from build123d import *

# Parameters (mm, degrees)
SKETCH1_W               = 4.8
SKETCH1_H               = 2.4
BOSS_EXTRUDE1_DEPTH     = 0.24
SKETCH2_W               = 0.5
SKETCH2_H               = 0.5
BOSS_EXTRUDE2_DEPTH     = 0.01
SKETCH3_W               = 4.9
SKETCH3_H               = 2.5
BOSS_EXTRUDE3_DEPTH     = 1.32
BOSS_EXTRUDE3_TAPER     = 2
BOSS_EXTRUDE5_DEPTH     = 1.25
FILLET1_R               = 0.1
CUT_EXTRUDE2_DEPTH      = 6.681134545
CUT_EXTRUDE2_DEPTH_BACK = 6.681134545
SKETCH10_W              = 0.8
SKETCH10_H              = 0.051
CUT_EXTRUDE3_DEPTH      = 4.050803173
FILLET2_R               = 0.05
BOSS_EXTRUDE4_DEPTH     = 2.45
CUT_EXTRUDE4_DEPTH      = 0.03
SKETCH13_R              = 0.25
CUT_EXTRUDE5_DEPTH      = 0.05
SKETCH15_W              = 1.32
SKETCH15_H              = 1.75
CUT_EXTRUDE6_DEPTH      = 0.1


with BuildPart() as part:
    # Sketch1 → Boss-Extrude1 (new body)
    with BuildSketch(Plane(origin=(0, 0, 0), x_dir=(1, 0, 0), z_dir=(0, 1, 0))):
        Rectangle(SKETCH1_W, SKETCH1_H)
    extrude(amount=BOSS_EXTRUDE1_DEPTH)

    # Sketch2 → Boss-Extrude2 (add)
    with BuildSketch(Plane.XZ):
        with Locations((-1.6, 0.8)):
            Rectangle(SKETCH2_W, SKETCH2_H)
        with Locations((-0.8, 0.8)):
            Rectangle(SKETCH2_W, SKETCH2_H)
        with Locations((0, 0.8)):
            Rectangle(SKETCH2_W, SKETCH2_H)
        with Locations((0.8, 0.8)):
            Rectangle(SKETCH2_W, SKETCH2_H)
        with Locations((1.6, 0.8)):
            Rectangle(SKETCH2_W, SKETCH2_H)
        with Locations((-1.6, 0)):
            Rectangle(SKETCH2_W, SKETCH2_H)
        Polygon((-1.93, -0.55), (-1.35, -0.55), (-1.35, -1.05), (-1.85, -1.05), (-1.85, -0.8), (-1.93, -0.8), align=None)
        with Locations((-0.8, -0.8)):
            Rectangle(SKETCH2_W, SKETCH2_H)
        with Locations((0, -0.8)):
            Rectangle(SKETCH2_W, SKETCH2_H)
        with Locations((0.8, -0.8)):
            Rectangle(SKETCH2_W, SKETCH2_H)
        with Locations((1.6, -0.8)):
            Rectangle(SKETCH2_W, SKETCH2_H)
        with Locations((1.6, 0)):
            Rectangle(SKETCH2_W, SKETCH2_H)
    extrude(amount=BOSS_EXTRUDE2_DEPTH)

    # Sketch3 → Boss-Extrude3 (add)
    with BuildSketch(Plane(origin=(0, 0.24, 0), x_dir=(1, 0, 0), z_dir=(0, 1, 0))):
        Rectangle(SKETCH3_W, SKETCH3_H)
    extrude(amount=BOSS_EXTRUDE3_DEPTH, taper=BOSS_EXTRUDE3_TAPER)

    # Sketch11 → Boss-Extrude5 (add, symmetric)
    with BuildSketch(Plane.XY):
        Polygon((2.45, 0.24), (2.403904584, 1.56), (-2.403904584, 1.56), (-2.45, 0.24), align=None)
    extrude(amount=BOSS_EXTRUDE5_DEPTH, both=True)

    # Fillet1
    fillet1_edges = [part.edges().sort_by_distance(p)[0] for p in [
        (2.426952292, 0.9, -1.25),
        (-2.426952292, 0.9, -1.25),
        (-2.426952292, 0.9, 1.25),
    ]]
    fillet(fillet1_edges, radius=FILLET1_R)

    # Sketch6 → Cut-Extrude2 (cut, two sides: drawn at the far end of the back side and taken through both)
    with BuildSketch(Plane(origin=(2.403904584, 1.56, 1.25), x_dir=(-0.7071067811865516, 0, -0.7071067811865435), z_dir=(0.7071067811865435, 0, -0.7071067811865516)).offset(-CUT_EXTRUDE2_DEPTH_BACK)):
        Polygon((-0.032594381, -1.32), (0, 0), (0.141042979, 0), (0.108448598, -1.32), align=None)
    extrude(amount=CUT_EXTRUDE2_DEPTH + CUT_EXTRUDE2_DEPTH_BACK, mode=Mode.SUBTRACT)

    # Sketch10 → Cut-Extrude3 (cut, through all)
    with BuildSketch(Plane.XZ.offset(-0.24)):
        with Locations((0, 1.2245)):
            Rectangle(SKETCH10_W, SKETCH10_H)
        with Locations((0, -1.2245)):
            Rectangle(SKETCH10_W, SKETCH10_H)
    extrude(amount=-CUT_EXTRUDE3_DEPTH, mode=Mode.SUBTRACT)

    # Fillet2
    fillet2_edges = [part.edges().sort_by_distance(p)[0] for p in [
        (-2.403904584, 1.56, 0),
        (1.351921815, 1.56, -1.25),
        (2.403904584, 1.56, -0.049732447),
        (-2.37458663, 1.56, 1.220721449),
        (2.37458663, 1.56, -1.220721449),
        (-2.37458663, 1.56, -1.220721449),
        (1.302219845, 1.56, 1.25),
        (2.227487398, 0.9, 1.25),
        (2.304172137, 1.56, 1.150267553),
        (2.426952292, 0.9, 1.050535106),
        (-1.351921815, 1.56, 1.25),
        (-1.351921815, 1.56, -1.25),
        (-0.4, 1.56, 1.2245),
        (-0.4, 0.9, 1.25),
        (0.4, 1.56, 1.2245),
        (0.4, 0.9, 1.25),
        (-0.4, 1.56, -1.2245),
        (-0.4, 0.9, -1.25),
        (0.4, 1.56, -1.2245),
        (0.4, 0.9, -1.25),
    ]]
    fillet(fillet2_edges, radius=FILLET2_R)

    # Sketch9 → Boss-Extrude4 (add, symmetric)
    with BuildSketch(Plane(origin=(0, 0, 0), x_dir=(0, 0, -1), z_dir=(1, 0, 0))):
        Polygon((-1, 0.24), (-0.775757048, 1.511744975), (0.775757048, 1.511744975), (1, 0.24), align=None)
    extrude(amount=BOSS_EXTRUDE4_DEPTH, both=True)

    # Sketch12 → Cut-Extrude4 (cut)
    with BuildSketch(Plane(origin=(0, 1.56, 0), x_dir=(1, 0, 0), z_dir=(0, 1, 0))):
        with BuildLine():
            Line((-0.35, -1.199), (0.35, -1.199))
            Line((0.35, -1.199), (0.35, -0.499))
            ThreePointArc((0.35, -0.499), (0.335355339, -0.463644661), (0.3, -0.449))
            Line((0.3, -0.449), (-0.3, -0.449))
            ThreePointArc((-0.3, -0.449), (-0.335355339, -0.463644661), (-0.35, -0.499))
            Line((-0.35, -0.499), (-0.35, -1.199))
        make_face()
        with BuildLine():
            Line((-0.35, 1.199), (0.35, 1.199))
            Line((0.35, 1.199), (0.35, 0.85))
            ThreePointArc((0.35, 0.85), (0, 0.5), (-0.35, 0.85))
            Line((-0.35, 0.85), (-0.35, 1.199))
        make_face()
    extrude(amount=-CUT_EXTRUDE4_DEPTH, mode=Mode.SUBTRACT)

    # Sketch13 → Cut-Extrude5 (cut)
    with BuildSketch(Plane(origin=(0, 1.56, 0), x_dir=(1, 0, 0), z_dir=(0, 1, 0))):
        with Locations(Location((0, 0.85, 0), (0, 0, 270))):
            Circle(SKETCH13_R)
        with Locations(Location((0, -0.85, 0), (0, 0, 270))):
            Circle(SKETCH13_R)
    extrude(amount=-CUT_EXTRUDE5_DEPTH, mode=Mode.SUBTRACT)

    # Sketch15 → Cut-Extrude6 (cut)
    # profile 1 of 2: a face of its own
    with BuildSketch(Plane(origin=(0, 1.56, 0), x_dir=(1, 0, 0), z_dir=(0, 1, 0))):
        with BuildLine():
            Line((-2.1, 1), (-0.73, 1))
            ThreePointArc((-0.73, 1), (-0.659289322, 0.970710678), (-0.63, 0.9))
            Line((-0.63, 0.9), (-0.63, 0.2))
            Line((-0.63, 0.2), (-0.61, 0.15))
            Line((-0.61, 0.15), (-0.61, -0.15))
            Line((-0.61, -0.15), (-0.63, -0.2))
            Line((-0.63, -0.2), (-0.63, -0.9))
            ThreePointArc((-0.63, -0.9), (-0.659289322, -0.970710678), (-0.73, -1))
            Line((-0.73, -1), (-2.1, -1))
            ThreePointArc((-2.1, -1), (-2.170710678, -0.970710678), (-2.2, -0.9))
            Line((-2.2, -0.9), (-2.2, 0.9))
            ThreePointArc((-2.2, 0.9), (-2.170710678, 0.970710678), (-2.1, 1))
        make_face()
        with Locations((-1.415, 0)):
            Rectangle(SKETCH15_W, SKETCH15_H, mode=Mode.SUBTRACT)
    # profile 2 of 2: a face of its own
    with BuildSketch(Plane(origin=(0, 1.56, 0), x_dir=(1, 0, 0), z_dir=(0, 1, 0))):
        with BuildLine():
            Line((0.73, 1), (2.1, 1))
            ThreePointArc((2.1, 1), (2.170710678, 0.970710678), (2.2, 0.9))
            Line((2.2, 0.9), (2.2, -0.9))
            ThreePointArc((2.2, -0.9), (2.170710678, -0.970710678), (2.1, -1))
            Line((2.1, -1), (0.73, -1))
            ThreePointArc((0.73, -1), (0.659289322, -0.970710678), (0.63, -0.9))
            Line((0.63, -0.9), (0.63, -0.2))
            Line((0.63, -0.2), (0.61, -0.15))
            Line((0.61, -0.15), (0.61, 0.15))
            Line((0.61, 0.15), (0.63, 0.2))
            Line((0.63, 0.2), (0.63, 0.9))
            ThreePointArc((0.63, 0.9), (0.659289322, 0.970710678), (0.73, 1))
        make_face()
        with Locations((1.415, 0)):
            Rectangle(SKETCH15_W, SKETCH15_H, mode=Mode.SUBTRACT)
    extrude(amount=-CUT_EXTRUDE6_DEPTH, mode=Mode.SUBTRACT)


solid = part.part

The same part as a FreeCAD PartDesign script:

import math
import FreeCAD as App
import Part
import Sketcher
Q = App.Units.Quantity


def edges_at(feature, points):
    """Names of the edges that pass closest to the given points."""
    edges = feature.Shape.Edges
    near = lambda p: min(range(len(edges)), key=lambda i: edges[i].distToShape(Part.Vertex(*p))[0])
    return sorted({f"Edge{near(p) + 1}" for p in points})

doc = App.newDocument("Part")
body = doc.addObject("PartDesign::Body", "Body")

# Sketch on XZ plane
sketch1 = doc.addObject("Sketcher::SketchObject", "Sketch")
body.addObject(sketch1)
sketch1.AttachmentSupport = (doc.XZ_Plane, [""])
sketch1.MapMode = "FlatFace"
sketch1.addGeometry([
    Part.LineSegment(App.Vector(-2.4, -1.2, 0), App.Vector(-2.4, 1.2, 0)),
    Part.LineSegment(App.Vector(-2.4, 1.2, 0), App.Vector(2.4, 1.2, 0)),
    Part.LineSegment(App.Vector(2.4, 1.2, 0), App.Vector(2.4, -1.2, 0)),
    Part.LineSegment(App.Vector(2.4, -1.2, 0), App.Vector(-2.4, -1.2, 0)),
], False)
sketch1.addConstraint([
    Sketcher.Constraint("Coincident", 0, 2, 1, 1),
    Sketcher.Constraint("Coincident", 1, 2, 2, 1),
    Sketcher.Constraint("Coincident", 2, 2, 3, 1),
    Sketcher.Constraint("Coincident", 3, 2, 0, 1),
    Sketcher.Constraint("Vertical", 0),
    Sketcher.Constraint("Horizontal", 1),
    Sketcher.Constraint("Vertical", 2),
    Sketcher.Constraint("Horizontal", 3),
    Sketcher.Constraint("Symmetric", 0, 2, 2, 2, -1, 1),
    Sketcher.Constraint("DistanceX", 1, 1, 1, 2, Q("4.8 mm")),
    Sketcher.Constraint("DistanceY", 0, 1, 0, 2, Q("2.4 mm")),
])
pad1 = doc.addObject("PartDesign::Pad", "Pad")
body.addObject(pad1)
pad1.Profile = sketch1
pad1.Length = 0.24
pad1.Reversed = True

# Sketch on XZ plane
sketch2 = doc.addObject("Sketcher::SketchObject", "Sketch001")
body.addObject(sketch2)
sketch2.AttachmentSupport = (doc.XZ_Plane, [""])
sketch2.MapMode = "FlatFace"
sketch2.addGeometry([
    Part.LineSegment(App.Vector(-1.85, 1.05, 0), App.Vector(-1.85, 0.55, 0)),  # 0
    Part.LineSegment(App.Vector(-1.85, 0.55, 0), App.Vector(-1.35, 0.55, 0)),  # 1
    Part.LineSegment(App.Vector(-1.35, 0.55, 0), App.Vector(-1.35, 1.05, 0)),  # 2
    Part.LineSegment(App.Vector(-1.35, 1.05, 0), App.Vector(-1.85, 1.05, 0)),  # 3
    Part.LineSegment(App.Vector(-1.05, 1.05, 0), App.Vector(-1.05, 0.55, 0)),  # 4
    Part.LineSegment(App.Vector(-1.05, 0.55, 0), App.Vector(-0.55, 0.55, 0)),  # 5
    Part.LineSegment(App.Vector(-0.55, 0.55, 0), App.Vector(-0.55, 1.05, 0)),  # 6
    Part.LineSegment(App.Vector(-0.55, 1.05, 0), App.Vector(-1.05, 1.05, 0)),  # 7
    Part.LineSegment(App.Vector(-0.25, 1.05, 0), App.Vector(-0.25, 0.55, 0)),  # 8
    Part.LineSegment(App.Vector(-0.25, 0.55, 0), App.Vector(0.25, 0.55, 0)),  # 9
    Part.LineSegment(App.Vector(0.25, 0.55, 0), App.Vector(0.25, 1.05, 0)),  # 10
    Part.LineSegment(App.Vector(0.25, 1.05, 0), App.Vector(-0.25, 1.05, 0)),  # 11
    Part.LineSegment(App.Vector(0.55, 1.05, 0), App.Vector(0.55, 0.55, 0)),  # 12
    Part.LineSegment(App.Vector(0.55, 0.55, 0), App.Vector(1.05, 0.55, 0)),  # 13
    Part.LineSegment(App.Vector(1.05, 0.55, 0), App.Vector(1.05, 1.05, 0)),  # 14
    Part.LineSegment(App.Vector(1.05, 1.05, 0), App.Vector(0.55, 1.05, 0)),  # 15
    Part.LineSegment(App.Vector(1.35, 1.05, 0), App.Vector(1.35, 0.55, 0)),  # 16
    Part.LineSegment(App.Vector(1.35, 0.55, 0), App.Vector(1.85, 0.55, 0)),  # 17
    Part.LineSegment(App.Vector(1.85, 0.55, 0), App.Vector(1.85, 1.05, 0)),  # 18
    Part.LineSegment(App.Vector(1.85, 1.05, 0), App.Vector(1.35, 1.05, 0)),  # 19
    Part.LineSegment(App.Vector(-1.85, 0.25, 0), App.Vector(-1.85, -0.25, 0)),  # 20
    Part.LineSegment(App.Vector(-1.85, -0.25, 0), App.Vector(-1.35, -0.25, 0)),  # 21
    Part.LineSegment(App.Vector(-1.35, -0.25, 0), App.Vector(-1.35, 0.25, 0)),  # 22
    Part.LineSegment(App.Vector(-1.35, 0.25, 0), App.Vector(-1.85, 0.25, 0)),  # 23
    Part.LineSegment(App.Vector(-1.35, -0.55, 0), App.Vector(-1.93, -0.55, 0)),  # 24
    Part.LineSegment(App.Vector(-1.93, -0.55, 0), App.Vector(-1.93, -0.8, 0)),  # 25
    Part.LineSegment(App.Vector(-1.93, -0.8, 0), App.Vector(-1.85, -0.8, 0)),  # 26
    Part.LineSegment(App.Vector(-1.85, -0.8, 0), App.Vector(-1.85, -1.05, 0)),  # 27
    Part.LineSegment(App.Vector(-1.85, -1.05, 0), App.Vector(-1.35, -1.05, 0)),  # 28
    Part.LineSegment(App.Vector(-1.35, -1.05, 0), App.Vector(-1.35, -0.55, 0)),  # 29
    Part.LineSegment(App.Vector(-1.05, -0.55, 0), App.Vector(-1.05, -1.05, 0)),  # 30
    Part.LineSegment(App.Vector(-1.05, -1.05, 0), App.Vector(-0.55, -1.05, 0)),  # 31
    Part.LineSegment(App.Vector(-0.55, -1.05, 0), App.Vector(-0.55, -0.55, 0)),  # 32
    Part.LineSegment(App.Vector(-0.55, -0.55, 0), App.Vector(-1.05, -0.55, 0)),  # 33
    Part.LineSegment(App.Vector(-0.25, -0.55, 0), App.Vector(-0.25, -1.05, 0)),  # 34
    Part.LineSegment(App.Vector(-0.25, -1.05, 0), App.Vector(0.25, -1.05, 0)),  # 35
    Part.LineSegment(App.Vector(0.25, -1.05, 0), App.Vector(0.25, -0.55, 0)),  # 36
    Part.LineSegment(App.Vector(0.25, -0.55, 0), App.Vector(-0.25, -0.55, 0)),  # 37
    Part.LineSegment(App.Vector(0.55, -0.55, 0), App.Vector(0.55, -1.05, 0)),  # 38
    Part.LineSegment(App.Vector(0.55, -1.05, 0), App.Vector(1.05, -1.05, 0)),  # 39
    Part.LineSegment(App.Vector(1.05, -1.05, 0), App.Vector(1.05, -0.55, 0)),  # 40
    Part.LineSegment(App.Vector(1.05, -0.55, 0), App.Vector(0.55, -0.55, 0)),  # 41
    Part.LineSegment(App.Vector(1.35, -0.55, 0), App.Vector(1.35, -1.05, 0)),  # 42
    Part.LineSegment(App.Vector(1.35, -1.05, 0), App.Vector(1.85, -1.05, 0)),  # 43
    Part.LineSegment(App.Vector(1.85, -1.05, 0), App.Vector(1.85, -0.55, 0)),  # 44
    Part.LineSegment(App.Vector(1.85, -0.55, 0), App.Vector(1.35, -0.55, 0)),  # 45
    Part.LineSegment(App.Vector(1.35, 0.25, 0), App.Vector(1.35, -0.25, 0)),  # 46
    Part.LineSegment(App.Vector(1.35, -0.25, 0), App.Vector(1.85, -0.25, 0)),  # 47
    Part.LineSegment(App.Vector(1.85, -0.25, 0), App.Vector(1.85, 0.25, 0)),  # 48
    Part.LineSegment(App.Vector(1.85, 0.25, 0), App.Vector(1.35, 0.25, 0)),  # 49
], False)
sketch2.addConstraint([
    Sketcher.Constraint("Coincident", 0, 2, 1, 1),
    Sketcher.Constraint("Coincident", 1, 2, 2, 1),
    Sketcher.Constraint("Coincident", 2, 2, 3, 1),
    Sketcher.Constraint("Coincident", 3, 2, 0, 1),
    Sketcher.Constraint("Coincident", 4, 2, 5, 1),
    Sketcher.Constraint("Coincident", 5, 2, 6, 1),
    Sketcher.Constraint("Coincident", 6, 2, 7, 1),
    Sketcher.Constraint("Coincident", 7, 2, 4, 1),
    Sketcher.Constraint("Coincident", 8, 2, 9, 1),
    Sketcher.Constraint("Coincident", 9, 2, 10, 1),
    Sketcher.Constraint("Coincident", 10, 2, 11, 1),
    Sketcher.Constraint("Coincident", 11, 2, 8, 1),
    Sketcher.Constraint("Coincident", 12, 2, 13, 1),
    Sketcher.Constraint("Coincident", 13, 2, 14, 1),
    Sketcher.Constraint("Coincident", 14, 2, 15, 1),
    Sketcher.Constraint("Coincident", 15, 2, 12, 1),
    Sketcher.Constraint("Coincident", 16, 2, 17, 1),
    Sketcher.Constraint("Coincident", 17, 2, 18, 1),
    Sketcher.Constraint("Coincident", 18, 2, 19, 1),
    Sketcher.Constraint("Coincident", 19, 2, 16, 1),
    Sketcher.Constraint("Coincident", 20, 2, 21, 1),
    Sketcher.Constraint("Coincident", 21, 2, 22, 1),
    Sketcher.Constraint("Coincident", 22, 2, 23, 1),
    Sketcher.Constraint("Coincident", 23, 2, 20, 1),
    Sketcher.Constraint("Coincident", 24, 2, 25, 1),
    Sketcher.Constraint("Coincident", 25, 2, 26, 1),
    Sketcher.Constraint("Coincident", 26, 2, 27, 1),
    Sketcher.Constraint("Coincident", 27, 2, 28, 1),
    Sketcher.Constraint("Coincident", 28, 2, 29, 1),
    Sketcher.Constraint("Coincident", 29, 2, 24, 1),
    Sketcher.Constraint("Coincident", 30, 2, 31, 1),
    Sketcher.Constraint("Coincident", 31, 2, 32, 1),
    Sketcher.Constraint("Coincident", 32, 2, 33, 1),
    Sketcher.Constraint("Coincident", 33, 2, 30, 1),
    Sketcher.Constraint("Coincident", 34, 2, 35, 1),
    Sketcher.Constraint("Coincident", 35, 2, 36, 1),
    Sketcher.Constraint("Coincident", 36, 2, 37, 1),
    Sketcher.Constraint("Coincident", 37, 2, 34, 1),
    Sketcher.Constraint("Coincident", 38, 2, 39, 1),
    Sketcher.Constraint("Coincident", 39, 2, 40, 1),
    Sketcher.Constraint("Coincident", 40, 2, 41, 1),
    Sketcher.Constraint("Coincident", 41, 2, 38, 1),
    Sketcher.Constraint("Coincident", 42, 2, 43, 1),
    Sketcher.Constraint("Coincident", 43, 2, 44, 1),
    Sketcher.Constraint("Coincident", 44, 2, 45, 1),
    Sketcher.Constraint("Coincident", 45, 2, 42, 1),
    Sketcher.Constraint("Coincident", 46, 2, 47, 1),
    Sketcher.Constraint("Coincident", 47, 2, 48, 1),
    Sketcher.Constraint("Coincident", 48, 2, 49, 1),
    Sketcher.Constraint("Coincident", 49, 2, 46, 1),
    Sketcher.Constraint("Vertical", 0),
    Sketcher.Constraint("Horizontal", 1),
    Sketcher.Constraint("Vertical", 2),
    Sketcher.Constraint("Horizontal", 3),
    Sketcher.Constraint("Vertical", 4),
    Sketcher.Constraint("Horizontal", 5),
    Sketcher.Constraint("Vertical", 6),
    Sketcher.Constraint("Horizontal", 7),
    Sketcher.Constraint("Vertical", 8),
    Sketcher.Constraint("Horizontal", 9),
    Sketcher.Constraint("Vertical", 10),
    Sketcher.Constraint("Horizontal", 11),
    Sketcher.Constraint("Vertical", 12),
    Sketcher.Constraint("Horizontal", 13),
    Sketcher.Constraint("Vertical", 14),
    Sketcher.Constraint("Horizontal", 15),
    Sketcher.Constraint("Vertical", 16),
    Sketcher.Constraint("Horizontal", 17),
    Sketcher.Constraint("Vertical", 18),
    Sketcher.Constraint("Horizontal", 19),
    Sketcher.Constraint("Vertical", 20),
    Sketcher.Constraint("Horizontal", 21),
    Sketcher.Constraint("Vertical", 22),
    Sketcher.Constraint("Horizontal", 23),
    Sketcher.Constraint("Horizontal", 24),
    Sketcher.Constraint("Vertical", 25),
    Sketcher.Constraint("Horizontal", 26),
    Sketcher.Constraint("Vertical", 27),
    Sketcher.Constraint("Horizontal", 28),
    Sketcher.Constraint("Vertical", 29),
    Sketcher.Constraint("Vertical", 30),
    Sketcher.Constraint("Horizontal", 31),
    Sketcher.Constraint("Vertical", 32),
    Sketcher.Constraint("Horizontal", 33),
    Sketcher.Constraint("Vertical", 34),
    Sketcher.Constraint("Horizontal", 35),
    Sketcher.Constraint("Vertical", 36),
    Sketcher.Constraint("Horizontal", 37),
    Sketcher.Constraint("Vertical", 38),
    Sketcher.Constraint("Horizontal", 39),
    Sketcher.Constraint("Vertical", 40),
    Sketcher.Constraint("Horizontal", 41),
    Sketcher.Constraint("Vertical", 42),
    Sketcher.Constraint("Horizontal", 43),
    Sketcher.Constraint("Vertical", 44),
    Sketcher.Constraint("Horizontal", 45),
    Sketcher.Constraint("Vertical", 46),
    Sketcher.Constraint("Horizontal", 47),
    Sketcher.Constraint("Vertical", 48),
    Sketcher.Constraint("Horizontal", 49),
    Sketcher.Constraint("Symmetric", 18, 2, 27, 2, -1, 1),
    Sketcher.Constraint("Symmetric", 16, 2, 29, 2, -1, 1),
    Sketcher.Constraint("Symmetric", 14, 2, 30, 2, -1, 1),
    Sketcher.Constraint("Symmetric", 12, 2, 32, 2, -1, 1),
    Sketcher.Constraint("Symmetric", 10, 2, 34, 2, -1, 1),
    Sketcher.Constraint("Symmetric", 8, 2, 36, 2, -1, 1),
    Sketcher.Constraint("Symmetric", 6, 2, 38, 2, -1, 1),
    Sketcher.Constraint("Symmetric", 4, 2, 40, 2, -1, 1),
    Sketcher.Constraint("Symmetric", 2, 2, 42, 2, -1, 1),
    Sketcher.Constraint("Symmetric", 0, 2, 44, 2, -1, 1),
    Sketcher.Constraint("Symmetric", 22, 2, 46, 2, -1, 1),
    Sketcher.Constraint("Symmetric", 20, 2, 48, 2, -1, 1),
    Sketcher.Constraint("Symmetric", 5, 2, 12, 2, -2),
    Sketcher.Constraint("Symmetric", 7, 2, 14, 2, -2),
    Sketcher.Constraint("Symmetric", 1, 2, 16, 2, -2),
    Sketcher.Constraint("Symmetric", 3, 2, 18, 2, -2),
    Sketcher.Constraint("Horizontal", 1, 2, 4, 2),
    Sketcher.Constraint("Horizontal", 3, 2, 6, 2),
    Sketcher.Constraint("Horizontal", 5, 2, 8, 2),
    Sketcher.Constraint("Horizontal", 7, 2, 10, 2),
    Sketcher.Constraint("Horizontal", 21, 2, 46, 2),
    Sketcher.Constraint("Vertical", 3, 2, 20, 2),
    Sketcher.Constraint("Vertical", 2, 2, 21, 2),
    Sketcher.Constraint("Vertical", 11, 2, 34, 2),
    Sketcher.Constraint("Equal", 3, 5),
    Sketcher.Constraint("Equal", 7, 9),
    Sketcher.Constraint("Equal", 49, 0),
    Sketcher.Constraint("Equal", 18, 20),
    Sketcher.Constraint("Equal", 25, 27),
    Sketcher.Constraint("DistanceX", 1, 1, 1, 2, Q("0.5 mm")),
    Sketcher.Constraint("DistanceX", 24, 2, 24, 1, Q("0.58 mm")),
    Sketcher.Constraint("DistanceY", 25, 2, -1, 1, Q("0.8 mm")),
    Sketcher.Constraint("DistanceX", 1, 2, 4, 2, Q("0.3 mm")),
    Sketcher.Constraint("DistanceX", 5, 2, 8, 2, Q("0.3 mm")),
])
pad2 = doc.addObject("PartDesign::Pad", "Pad001")
body.addObject(pad2)
pad2.Profile = sketch2
pad2.Length = 0.01

# Sketch on XZ plane
sketch3 = doc.addObject("Sketcher::SketchObject", "Sketch002")
body.addObject(sketch3)
sketch3.AttachmentSupport = (doc.XZ_Plane, [""])
sketch3.MapMode = "FlatFace"
sketch3.AttachmentOffset = App.Placement(App.Vector(0, 0, -0.24), App.Rotation())
sketch3.addGeometry([
    Part.LineSegment(App.Vector(-2.5, -1.2, 0), App.Vector(-2.5, 1.2, 0)),
    Part.LineSegment(App.Vector(-2.5, 1.2, 0), App.Vector(2.5, 1.2, 0)),
    Part.LineSegment(App.Vector(2.5, 1.2, 0), App.Vector(2.5, -1.2, 0)),
    Part.LineSegment(App.Vector(2.5, -1.2, 0), App.Vector(-2.5, -1.2, 0)),
], False)
sketch3.addConstraint([
    Sketcher.Constraint("Coincident", 0, 2, 1, 1),
    Sketcher.Constraint("Coincident", 1, 2, 2, 1),
    Sketcher.Constraint("Coincident", 2, 2, 3, 1),
    Sketcher.Constraint("Coincident", 3, 2, 0, 1),
    Sketcher.Constraint("Vertical", 0),
    Sketcher.Constraint("Horizontal", 1),
    Sketcher.Constraint("Vertical", 2),
    Sketcher.Constraint("Horizontal", 3),
    Sketcher.Constraint("Symmetric", 0, 2, 2, 2, -1, 1),
    Sketcher.Constraint("DistanceX", 1, 1, 1, 2, Q("4.9 mm")),
    Sketcher.Constraint("DistanceY", 0, 1, 0, 2, Q("2.5 mm")),
])
pad3 = doc.addObject("PartDesign::Pad", "Pad002")
body.addObject(pad3)
pad3.Profile = sketch3
pad3.Length = 1.32
pad3.Reversed = True
pad3.TaperAngle = -2

# Sketch on XY plane
sketch4 = doc.addObject("Sketcher::SketchObject", "Sketch003")
body.addObject(sketch4)
sketch4.AttachmentSupport = (doc.XY_Plane, [""])
sketch4.MapMode = "FlatFace"
sketch4.addGeometry([
    Part.LineSegment(App.Vector(2.5, 0.2, 0), App.Vector(2.4, 1.6, 0)),
    Part.LineSegment(App.Vector(2.4, 1.6, 0), App.Vector(-2.4, 1.6, 0)),
    Part.LineSegment(App.Vector(-2.4, 1.6, 0), App.Vector(-2.5, 0.2, 0)),
    Part.LineSegment(App.Vector(-2.5, 0.2, 0), App.Vector(2.5, 0.2, 0)),
], False)
sketch4.addConstraint([
    Sketcher.Constraint("Coincident", 0, 2, 1, 1),
    Sketcher.Constraint("Coincident", 1, 2, 2, 1),
    Sketcher.Constraint("Coincident", 2, 2, 3, 1),
    Sketcher.Constraint("Coincident", 3, 2, 0, 1),
    Sketcher.Constraint("Horizontal", 1),
    Sketcher.Constraint("Horizontal", 3),
    Sketcher.Constraint("Equal", 0, 2),
    Sketcher.Constraint("Angle", 0, Q("92 deg")),
    Sketcher.Constraint("DistanceX", 3, 1, 3, 2, Q("4.9 mm")),
    Sketcher.Constraint("DistanceY", -1, 1, 0, 2, Q("1.56 mm")),
    Sketcher.Constraint("DistanceX", 2, 2, -1, 1, Q("2.45 mm")),
    Sketcher.Constraint("DistanceY", -1, 1, 2, 2, Q("0.24 mm")),
])
pad4 = doc.addObject("PartDesign::Pad", "Pad003")
body.addObject(pad4)
pad4.Profile = sketch4
pad4.Length = 2.5
pad4.Midplane = True
doc.recompute()

fillet = doc.addObject("PartDesign::Fillet", "Fillet")
body.addObject(fillet)
fillet.Base = (pad4, edges_at(pad4, [(2.427, 0.9, -1.25), (-2.427, 0.9, -1.25), (-2.427, 0.9, 1.25)]))
fillet.Radius = 0.1

# Sketch on an angled plane
sketch5 = doc.addObject("Sketcher::SketchObject", "Sketch004")
body.addObject(sketch5)
sketch5.Placement = App.Placement(App.Vector(2.403905, 1.56, 1.25), App.Rotation(App.Vector(-0.707106781, 0, -0.707106781), App.Vector(0, 0.999999999, 0), App.Vector(0.707106781, 0, -0.707106781), "ZXY"))
sketch5.addGeometry([
    Part.LineSegment(App.Vector(0, 0, 0), App.Vector(-0.03, -1.32, 0)),
    Part.LineSegment(App.Vector(-0.03, -1.32, 0), App.Vector(0.11, -1.32, 0)),
    Part.LineSegment(App.Vector(0.11, -1.32, 0), App.Vector(0.14, 0, 0)),
    Part.LineSegment(App.Vector(0.14, 0, 0), App.Vector(0, 0, 0)),
], False)
sketch5.addConstraint([
    Sketcher.Constraint("Coincident", 0, 2, 1, 1),
    Sketcher.Constraint("Coincident", 1, 2, 2, 1),
    Sketcher.Constraint("Coincident", 2, 2, 3, 1),
    Sketcher.Constraint("Coincident", 3, 2, 0, 1),
    Sketcher.Constraint("Horizontal", 1),
    Sketcher.Constraint("Horizontal", 3),
    Sketcher.Constraint("Coincident", 3, 2, -1, 1),
    Sketcher.Constraint("Parallel", 0, 2),
    Sketcher.Constraint("DistanceY", 0, 2, -1, 1, Q("1.32 mm")),
    Sketcher.Constraint("DistanceX", 1, 1, 1, 2, Q("0.141043 mm")),
    Sketcher.Constraint("DistanceX", -1, 1, 1, 2, Q("0.108449 mm")),
])
pocket1 = doc.addObject("PartDesign::Pocket", "Pocket")
body.addObject(pocket1)
pocket1.Profile = sketch5
pocket1.Type = "ThroughAll"
pocket1.Midplane = True

# Sketch on XZ plane
sketch6 = doc.addObject("Sketcher::SketchObject", "Sketch005")
body.addObject(sketch6)
sketch6.AttachmentSupport = (doc.XZ_Plane, [""])
sketch6.MapMode = "FlatFace"
sketch6.AttachmentOffset = App.Placement(App.Vector(0, 0, -0.24), App.Rotation())
sketch6.addGeometry([
    Part.LineSegment(App.Vector(-0.4, 1.25, 0), App.Vector(-0.4, 1.2, 0)),  # 0
    Part.LineSegment(App.Vector(-0.4, 1.2, 0), App.Vector(0.4, 1.2, 0)),  # 1
    Part.LineSegment(App.Vector(0.4, 1.2, 0), App.Vector(0.4, 1.25, 0)),  # 2
    Part.LineSegment(App.Vector(0.4, 1.25, 0), App.Vector(-0.4, 1.25, 0)),  # 3
    Part.LineSegment(App.Vector(-0.4, -1.2, 0), App.Vector(-0.4, -1.25, 0)),  # 4
    Part.LineSegment(App.Vector(-0.4, -1.25, 0), App.Vector(0.4, -1.25, 0)),  # 5
    Part.LineSegment(App.Vector(0.4, -1.25, 0), App.Vector(0.4, -1.2, 0)),  # 6
    Part.LineSegment(App.Vector(0.4, -1.2, 0), App.Vector(-0.4, -1.2, 0)),  # 7
], False)
sketch6.addConstraint([
    Sketcher.Constraint("Coincident", 0, 2, 1, 1),
    Sketcher.Constraint("Coincident", 1, 2, 2, 1),
    Sketcher.Constraint("Coincident", 2, 2, 3, 1),
    Sketcher.Constraint("Coincident", 3, 2, 0, 1),
    Sketcher.Constraint("Coincident", 4, 2, 5, 1),
    Sketcher.Constraint("Coincident", 5, 2, 6, 1),
    Sketcher.Constraint("Coincident", 6, 2, 7, 1),
    Sketcher.Constraint("Coincident", 7, 2, 4, 1),
    Sketcher.Constraint("Vertical", 0),
    Sketcher.Constraint("Horizontal", 1),
    Sketcher.Constraint("Vertical", 2),
    Sketcher.Constraint("Horizontal", 3),
    Sketcher.Constraint("Vertical", 4),
    Sketcher.Constraint("Horizontal", 5),
    Sketcher.Constraint("Vertical", 6),
    Sketcher.Constraint("Horizontal", 7),
    Sketcher.Constraint("Symmetric", 2, 2, 4, 2, -1, 1),
    Sketcher.Constraint("Symmetric", 0, 2, 6, 2, -1, 1),
    Sketcher.Constraint("Vertical", 3, 2, 4, 2),
    Sketcher.Constraint("DistanceX", 1, 1, 1, 2, Q("0.8 mm")),
    Sketcher.Constraint("DistanceY", 4, 2, 3, 2, Q("2.5 mm")),
    Sketcher.Constraint("DistanceY", 0, 2, 0, 1, Q("0.051 mm")),
])
pocket2 = doc.addObject("PartDesign::Pocket", "Pocket001")
body.addObject(pocket2)
pocket2.Profile = sketch6
pocket2.Type = "ThroughAll"
doc.recompute()

fillet2 = doc.addObject("PartDesign::Fillet", "Fillet001")
body.addObject(fillet2)
fillet2.Base = (pocket2, edges_at(pocket2, [
    (-2.404, 1.56, 0),
    (1.352, 1.56, -1.25),
    (2.404, 1.56, -0.05),
    (-2.375, 1.56, 1.221),
    (2.375, 1.56, -1.221),
    (-2.375, 1.56, -1.221),
    (1.302, 1.56, 1.25),
    (2.227, 0.9, 1.25),
    (2.304, 1.56, 1.15),
    (2.427, 0.9, 1.051),
    (-1.352, 1.56, 1.25),
    (-1.352, 1.56, -1.25),
    (-0.4, 1.56, 1.224),
    (-0.4, 0.9, 1.25),
    (0.4, 1.56, 1.224),
    (0.4, 0.9, 1.25),
    (-0.4, 1.56, -1.224),
    (-0.4, 0.9, -1.25),
    (0.4, 1.56, -1.224),
    (0.4, 0.9, -1.25),
]))
fillet2.Radius = 0.05

# Sketch on YZ plane
sketch7 = doc.addObject("Sketcher::SketchObject", "Sketch006")
body.addObject(sketch7)
sketch7.AttachmentSupport = (doc.YZ_Plane, [""])
sketch7.MapMode = "FlatFace"
sketch7.addGeometry([
    Part.LineSegment(App.Vector(1.5, 0.8, 0), App.Vector(0.2, 1, 0)),
    Part.LineSegment(App.Vector(0.2, 1, 0), App.Vector(0.2, -1, 0)),
    Part.LineSegment(App.Vector(0.2, -1, 0), App.Vector(1.5, -0.8, 0)),
    Part.LineSegment(App.Vector(1.5, -0.8, 0), App.Vector(1.5, 0.8, 0)),
], False)
sketch7.addConstraint([
    Sketcher.Constraint("Coincident", 0, 2, 1, 1),
    Sketcher.Constraint("Coincident", 1, 2, 2, 1),
    Sketcher.Constraint("Coincident", 2, 2, 3, 1),
    Sketcher.Constraint("Coincident", 3, 2, 0, 1),
    Sketcher.Constraint("Vertical", 1),
    Sketcher.Constraint("Vertical", 3),
    Sketcher.Constraint("Equal", 0, 2),
    Sketcher.Constraint("DistanceY", 1, 2, 1, 1, Q("2 mm")),
    Sketcher.Constraint("Angle", 0, Q("170 deg")),
    Sketcher.Constraint("DistanceY", -1, 1, 0, 2, Q("1 mm")),
    Sketcher.Constraint("DistanceX", -1, 1, 0, 2, Q("0.24 mm")),
    Sketcher.Constraint("DistanceY", 3, 1, 3, 2, Q("1.551514 mm")),
])
pad5 = doc.addObject("PartDesign::Pad", "Pad004")
body.addObject(pad5)
pad5.Profile = sketch7
pad5.Length = 4.9
pad5.Midplane = True

# Sketch on XZ plane
sketch8 = doc.addObject("Sketcher::SketchObject", "Sketch007")
body.addObject(sketch8)
sketch8.AttachmentSupport = (doc.XZ_Plane, [""])
sketch8.MapMode = "FlatFace"
sketch8.AttachmentOffset = App.Placement(App.Vector(0, 0, -1.56), App.Rotation())
sketch8.addGeometry([
    Part.LineSegment(App.Vector(-0.35, 1.2, 0), App.Vector(0.35, 1.2, 0)),  # 0
    Part.LineSegment(App.Vector(0.35, 1.2, 0), App.Vector(0.35, 0.5, 0)),  # 1
    Part.ArcOfCircle(Part.Circle(App.Vector(0.3, 0.5, 0), App.Vector(0, 0, 1), 0.05), math.radians(-90), math.radians(0)),  # 2
    Part.LineSegment(App.Vector(0.3, 0.45, 0), App.Vector(-0.3, 0.45, 0)),  # 3
    Part.ArcOfCircle(Part.Circle(App.Vector(-0.3, 0.5, 0), App.Vector(0, 0, 1), 0.05), math.radians(180), math.radians(270)),  # 4
    Part.LineSegment(App.Vector(-0.35, 0.5, 0), App.Vector(-0.35, 1.2, 0)),  # 5
    Part.LineSegment(App.Vector(0.35, -1.2, 0), App.Vector(-0.35, -1.2, 0)),  # 6
    Part.LineSegment(App.Vector(-0.35, -1.2, 0), App.Vector(-0.35, -0.85, 0)),  # 7
    Part.ArcOfCircle(Part.Circle(App.Vector(0, -0.85, 0), App.Vector(0, 0, 1), 0.35), math.radians(0), math.radians(180)),  # 8
    Part.LineSegment(App.Vector(0.35, -0.85, 0), App.Vector(0.35, -1.2, 0)),  # 9
], False)
sketch8.addConstraint([
    Sketcher.Constraint("Coincident", 0, 2, 1, 1),
    Sketcher.Constraint("Tangent", 1, 2, 2, 2),
    Sketcher.Constraint("Tangent", 2, 1, 3, 1),
    Sketcher.Constraint("Tangent", 3, 2, 4, 2),
    Sketcher.Constraint("Tangent", 4, 1, 5, 1),
    Sketcher.Constraint("Coincident", 5, 2, 0, 1),
    Sketcher.Constraint("Coincident", 6, 2, 7, 1),
    Sketcher.Constraint("Tangent", 7, 2, 8, 2),
    Sketcher.Constraint("Tangent", 8, 1, 9, 1),
    Sketcher.Constraint("Coincident", 9, 2, 6, 1),
    Sketcher.Constraint("Horizontal", 0),
    Sketcher.Constraint("Vertical", 1),
    Sketcher.Constraint("Horizontal", 3),
    Sketcher.Constraint("Vertical", 5),
    Sketcher.Constraint("Horizontal", 6),
    Sketcher.Constraint("Vertical", 7),
    Sketcher.Constraint("Vertical", 9),
    Sketcher.Constraint("Equal", 2, 4),
    Sketcher.Constraint("Symmetric", 0, 2, 6, 2, -1, 1),
    Sketcher.Constraint("PointOnObject", 8, 3, -2),
    Sketcher.Constraint("Vertical", 5, 2, 6, 2),
    Sketcher.Constraint("Equal", 6, 1),
    Sketcher.Constraint("Radius", 2, Q("0.05 mm")),
    Sketcher.Constraint("Radius", 8, Q("0.35 mm")),
    Sketcher.Constraint("DistanceY", 7, 1, 7, 2, Q("0.349 mm")),
    Sketcher.Constraint("DistanceY", 8, 3, -1, 1, Q("0.85 mm")),
])
pocket3 = doc.addObject("PartDesign::Pocket", "Pocket002")
body.addObject(pocket3)
pocket3.Profile = sketch8
pocket3.Length = 0.03
pocket3.Reversed = True

# Sketch on XZ plane
sketch9 = doc.addObject("Sketcher::SketchObject", "Sketch008")
body.addObject(sketch9)
sketch9.AttachmentSupport = (doc.XZ_Plane, [""])
sketch9.MapMode = "FlatFace"
sketch9.AttachmentOffset = App.Placement(App.Vector(0, 0, -1.56), App.Rotation())
sketch9.addGeometry([
    Part.Circle(App.Vector(0, -0.85, 0), App.Vector(0, 0, 1), 0.25),
    Part.Circle(App.Vector(0, 0.85, 0), App.Vector(0, 0, 1), 0.25),
], False)
sketch9.addConstraint([
    Sketcher.Constraint("Equal", 0, 1),
    Sketcher.Constraint("Symmetric", 0, 3, 1, 3, -1, 1),
    Sketcher.Constraint("PointOnObject", 0, 3, -2),
    Sketcher.Constraint("Diameter", 0, Q("0.5 mm")),
    Sketcher.Constraint("DistanceY", 0, 3, 1, 3, Q("1.7 mm")),
])
pocket4 = doc.addObject("PartDesign::Pocket", "Pocket003")
body.addObject(pocket4)
pocket4.Profile = sketch9
pocket4.Length = 0.05
pocket4.Reversed = True

# Sketch on XZ plane
sketch10 = doc.addObject("Sketcher::SketchObject", "Sketch009")
body.addObject(sketch10)
sketch10.AttachmentSupport = (doc.XZ_Plane, [""])
sketch10.MapMode = "FlatFace"
sketch10.AttachmentOffset = App.Placement(App.Vector(0, 0, -1.56), App.Rotation())
sketch10.addGeometry([
    Part.LineSegment(App.Vector(-0.73, -1, 0), App.Vector(-2.1, -1, 0)),  # 0
    Part.ArcOfCircle(Part.Circle(App.Vector(-2.1, -0.9, 0), App.Vector(0, 0, 1), 0.1), math.radians(180), math.radians(270)),  # 1
    Part.LineSegment(App.Vector(-2.2, -0.9, 0), App.Vector(-2.2, 0.9, 0)),  # 2
    Part.ArcOfCircle(Part.Circle(App.Vector(-2.1, 0.9, 0), App.Vector(0, 0, 1), 0.1), math.radians(90), math.radians(180)),  # 3
    Part.LineSegment(App.Vector(-2.1, 1, 0), App.Vector(-0.73, 1, 0)),  # 4
    Part.ArcOfCircle(Part.Circle(App.Vector(-0.73, 0.9, 0), App.Vector(0, 0, 1), 0.1), math.radians(0), math.radians(90)),  # 5
    Part.LineSegment(App.Vector(-0.63, 0.9, 0), App.Vector(-0.63, 0.2, 0)),  # 6
    Part.LineSegment(App.Vector(-0.63, 0.2, 0), App.Vector(-0.61, 0.15, 0)),  # 7
    Part.LineSegment(App.Vector(-0.61, 0.15, 0), App.Vector(-0.61, -0.15, 0)),  # 8
    Part.LineSegment(App.Vector(-0.61, -0.15, 0), App.Vector(-0.63, -0.2, 0)),  # 9
    Part.LineSegment(App.Vector(-0.63, -0.2, 0), App.Vector(-0.63, -0.9, 0)),  # 10
    Part.ArcOfCircle(Part.Circle(App.Vector(-0.73, -0.9, 0), App.Vector(0, 0, 1), 0.1), math.radians(-90), math.radians(0)),  # 11
    Part.LineSegment(App.Vector(-2.08, 0.88, 0), App.Vector(-2.08, -0.88, 0)),  # 12
    Part.LineSegment(App.Vector(-2.08, -0.88, 0), App.Vector(-0.76, -0.88, 0)),  # 13
    Part.LineSegment(App.Vector(-0.76, -0.88, 0), App.Vector(-0.76, 0.88, 0)),  # 14
    Part.LineSegment(App.Vector(-0.76, 0.88, 0), App.Vector(-2.08, 0.88, 0)),  # 15
    Part.LineSegment(App.Vector(2.1, -1, 0), App.Vector(0.73, -1, 0)),  # 16
    Part.ArcOfCircle(Part.Circle(App.Vector(0.73, -0.9, 0), App.Vector(0, 0, 1), 0.1), math.radians(180), math.radians(270)),  # 17
    Part.LineSegment(App.Vector(0.63, -0.9, 0), App.Vector(0.63, -0.2, 0)),  # 18
    Part.LineSegment(App.Vector(0.63, -0.2, 0), App.Vector(0.61, -0.15, 0)),  # 19
    Part.LineSegment(App.Vector(0.61, -0.15, 0), App.Vector(0.61, 0.15, 0)),  # 20
    Part.LineSegment(App.Vector(0.61, 0.15, 0), App.Vector(0.63, 0.2, 0)),  # 21
    Part.LineSegment(App.Vector(0.63, 0.2, 0), App.Vector(0.63, 0.9, 0)),  # 22
    Part.ArcOfCircle(Part.Circle(App.Vector(0.73, 0.9, 0), App.Vector(0, 0, 1), 0.1), math.radians(90), math.radians(180)),  # 23
    Part.LineSegment(App.Vector(0.73, 1, 0), App.Vector(2.1, 1, 0)),  # 24
    Part.ArcOfCircle(Part.Circle(App.Vector(2.1, 0.9, 0), App.Vector(0, 0, 1), 0.1), math.radians(0), math.radians(90)),  # 25
    Part.LineSegment(App.Vector(2.2, 0.9, 0), App.Vector(2.2, -0.9, 0)),  # 26
    Part.ArcOfCircle(Part.Circle(App.Vector(2.1, -0.9, 0), App.Vector(0, 0, 1), 0.1), math.radians(-90), math.radians(0)),  # 27
    Part.LineSegment(App.Vector(0.76, 0.88, 0), App.Vector(0.76, -0.88, 0)),  # 28
    Part.LineSegment(App.Vector(0.76, -0.88, 0), App.Vector(2.08, -0.88, 0)),  # 29
    Part.LineSegment(App.Vector(2.08, -0.88, 0), App.Vector(2.08, 0.88, 0)),  # 30
    Part.LineSegment(App.Vector(2.08, 0.88, 0), App.Vector(0.76, 0.88, 0)),  # 31
], False)
sketch10.addConstraint([
    Sketcher.Constraint("Tangent", 0, 2, 1, 2),
    Sketcher.Constraint("Tangent", 1, 1, 2, 1),
    Sketcher.Constraint("Tangent", 2, 2, 3, 2),
    Sketcher.Constraint("Tangent", 3, 1, 4, 1),
    Sketcher.Constraint("Tangent", 4, 2, 5, 2),
    Sketcher.Constraint("Tangent", 5, 1, 6, 1),
    Sketcher.Constraint("Coincident", 6, 2, 7, 1),
    Sketcher.Constraint("Coincident", 7, 2, 8, 1),
    Sketcher.Constraint("Coincident", 8, 2, 9, 1),
    Sketcher.Constraint("Coincident", 9, 2, 10, 1),
    Sketcher.Constraint("Tangent", 10, 2, 11, 2),
    Sketcher.Constraint("Tangent", 11, 1, 0, 1),
    Sketcher.Constraint("Coincident", 12, 2, 13, 1),
    Sketcher.Constraint("Coincident", 13, 2, 14, 1),
    Sketcher.Constraint("Coincident", 14, 2, 15, 1),
    Sketcher.Constraint("Coincident", 15, 2, 12, 1),
    Sketcher.Constraint("Tangent", 16, 2, 17, 2),
    Sketcher.Constraint("Tangent", 17, 1, 18, 1),
    Sketcher.Constraint("Coincident", 18, 2, 19, 1),
    Sketcher.Constraint("Coincident", 19, 2, 20, 1),
    Sketcher.Constraint("Coincident", 20, 2, 21, 1),
    Sketcher.Constraint("Coincident", 21, 2, 22, 1),
    Sketcher.Constraint("Tangent", 22, 2, 23, 2),
    Sketcher.Constraint("Tangent", 23, 1, 24, 1),
    Sketcher.Constraint("Tangent", 24, 2, 25, 2),
    Sketcher.Constraint("Tangent", 25, 1, 26, 1),
    Sketcher.Constraint("Tangent", 26, 2, 27, 2),
    Sketcher.Constraint("Tangent", 27, 1, 16, 1),
    Sketcher.Constraint("Coincident", 28, 2, 29, 1),
    Sketcher.Constraint("Coincident", 29, 2, 30, 1),
    Sketcher.Constraint("Coincident", 30, 2, 31, 1),
    Sketcher.Constraint("Coincident", 31, 2, 28, 1),
    Sketcher.Constraint("Horizontal", 0),
    Sketcher.Constraint("Vertical", 2),
    Sketcher.Constraint("Horizontal", 4),
    Sketcher.Constraint("Vertical", 6),
    Sketcher.Constraint("Vertical", 8),
    Sketcher.Constraint("Vertical", 10),
    Sketcher.Constraint("Vertical", 12),
    Sketcher.Constraint("Horizontal", 13),
    Sketcher.Constraint("Vertical", 14),
    Sketcher.Constraint("Horizontal", 15),
    Sketcher.Constraint("Horizontal", 16),
    Sketcher.Constraint("Vertical", 18),
    Sketcher.Constraint("Vertical", 20),
    Sketcher.Constraint("Vertical", 22),
    Sketcher.Constraint("Horizontal", 24),
    Sketcher.Constraint("Vertical", 26),
    Sketcher.Constraint("Vertical", 28),
    Sketcher.Constraint("Horizontal", 29),
    Sketcher.Constraint("Vertical", 30),
    Sketcher.Constraint("Horizontal", 31),
    Sketcher.Constraint("Equal", 1, 3),
    Sketcher.Constraint("Equal", 3, 5),
    Sketcher.Constraint("Equal", 5, 11),
    Sketcher.Constraint("Equal", 11, 17),
    Sketcher.Constraint("Equal", 17, 23),
    Sketcher.Constraint("Equal", 23, 25),
    Sketcher.Constraint("Equal", 25, 27),
    Sketcher.Constraint("Symmetric", 5, 3, 17, 3, -1, 1),
    Sketcher.Constraint("Symmetric", 11, 3, 23, 3, -1, 1),
    Sketcher.Constraint("Symmetric", 7, 2, 19, 2, -1, 1),
    Sketcher.Constraint("Symmetric", 14, 2, 28, 2, -1, 1),
    Sketcher.Constraint("Symmetric", 12, 2, 30, 2, -1, 1),
    Sketcher.Constraint("Symmetric", 11, 3, 17, 3, -2),
    Sketcher.Constraint("Parallel", 7, 19),
    Sketcher.Constraint("Parallel", 9, 21),
    Sketcher.Constraint("Horizontal", 9, 2, 18, 2),
    Sketcher.Constraint("Horizontal", 8, 2, 19, 2),
    Sketcher.Constraint("Horizontal", 7, 2, 20, 2),
    Sketcher.Constraint("Horizontal", 13, 2, 28, 2),
    Sketcher.Constraint("Equal", 4, 16),
    Sketcher.Constraint("Radius", 1, Q("0.1 mm")),
    Sketcher.Constraint("DistanceY", 2, 1, 2, 2, Q("1.8 mm")),
    Sketcher.Constraint("DistanceY", 6, 2, 6, 1, Q("0.7 mm")),
    Sketcher.Constraint("DistanceY", 8, 2, 8, 1, Q("0.3 mm")),
    Sketcher.Constraint("DistanceX", 0, 2, 0, 1, Q("1.37 mm")),
    Sketcher.Constraint("DistanceX", 13, 1, 13, 2, Q("1.32 mm")),
    Sketcher.Constraint("DistanceY", 12, 2, 12, 1, Q("1.75 mm")),
    Sketcher.Constraint("DistanceX", 1, 3, -1, 1, Q("2.1 mm")),
    Sketcher.Constraint("DistanceX", 7, 2, -1, 1, Q("0.61 mm")),
    Sketcher.Constraint("DistanceX", 12, 2, -1, 1, Q("2.075 mm")),
])
pocket5 = doc.addObject("PartDesign::Pocket", "Pocket004")
body.addObject(pocket5)
pocket5.Profile = sketch10
pocket5.Length = 0.1
pocket5.Reversed = True

doc.recompute()
